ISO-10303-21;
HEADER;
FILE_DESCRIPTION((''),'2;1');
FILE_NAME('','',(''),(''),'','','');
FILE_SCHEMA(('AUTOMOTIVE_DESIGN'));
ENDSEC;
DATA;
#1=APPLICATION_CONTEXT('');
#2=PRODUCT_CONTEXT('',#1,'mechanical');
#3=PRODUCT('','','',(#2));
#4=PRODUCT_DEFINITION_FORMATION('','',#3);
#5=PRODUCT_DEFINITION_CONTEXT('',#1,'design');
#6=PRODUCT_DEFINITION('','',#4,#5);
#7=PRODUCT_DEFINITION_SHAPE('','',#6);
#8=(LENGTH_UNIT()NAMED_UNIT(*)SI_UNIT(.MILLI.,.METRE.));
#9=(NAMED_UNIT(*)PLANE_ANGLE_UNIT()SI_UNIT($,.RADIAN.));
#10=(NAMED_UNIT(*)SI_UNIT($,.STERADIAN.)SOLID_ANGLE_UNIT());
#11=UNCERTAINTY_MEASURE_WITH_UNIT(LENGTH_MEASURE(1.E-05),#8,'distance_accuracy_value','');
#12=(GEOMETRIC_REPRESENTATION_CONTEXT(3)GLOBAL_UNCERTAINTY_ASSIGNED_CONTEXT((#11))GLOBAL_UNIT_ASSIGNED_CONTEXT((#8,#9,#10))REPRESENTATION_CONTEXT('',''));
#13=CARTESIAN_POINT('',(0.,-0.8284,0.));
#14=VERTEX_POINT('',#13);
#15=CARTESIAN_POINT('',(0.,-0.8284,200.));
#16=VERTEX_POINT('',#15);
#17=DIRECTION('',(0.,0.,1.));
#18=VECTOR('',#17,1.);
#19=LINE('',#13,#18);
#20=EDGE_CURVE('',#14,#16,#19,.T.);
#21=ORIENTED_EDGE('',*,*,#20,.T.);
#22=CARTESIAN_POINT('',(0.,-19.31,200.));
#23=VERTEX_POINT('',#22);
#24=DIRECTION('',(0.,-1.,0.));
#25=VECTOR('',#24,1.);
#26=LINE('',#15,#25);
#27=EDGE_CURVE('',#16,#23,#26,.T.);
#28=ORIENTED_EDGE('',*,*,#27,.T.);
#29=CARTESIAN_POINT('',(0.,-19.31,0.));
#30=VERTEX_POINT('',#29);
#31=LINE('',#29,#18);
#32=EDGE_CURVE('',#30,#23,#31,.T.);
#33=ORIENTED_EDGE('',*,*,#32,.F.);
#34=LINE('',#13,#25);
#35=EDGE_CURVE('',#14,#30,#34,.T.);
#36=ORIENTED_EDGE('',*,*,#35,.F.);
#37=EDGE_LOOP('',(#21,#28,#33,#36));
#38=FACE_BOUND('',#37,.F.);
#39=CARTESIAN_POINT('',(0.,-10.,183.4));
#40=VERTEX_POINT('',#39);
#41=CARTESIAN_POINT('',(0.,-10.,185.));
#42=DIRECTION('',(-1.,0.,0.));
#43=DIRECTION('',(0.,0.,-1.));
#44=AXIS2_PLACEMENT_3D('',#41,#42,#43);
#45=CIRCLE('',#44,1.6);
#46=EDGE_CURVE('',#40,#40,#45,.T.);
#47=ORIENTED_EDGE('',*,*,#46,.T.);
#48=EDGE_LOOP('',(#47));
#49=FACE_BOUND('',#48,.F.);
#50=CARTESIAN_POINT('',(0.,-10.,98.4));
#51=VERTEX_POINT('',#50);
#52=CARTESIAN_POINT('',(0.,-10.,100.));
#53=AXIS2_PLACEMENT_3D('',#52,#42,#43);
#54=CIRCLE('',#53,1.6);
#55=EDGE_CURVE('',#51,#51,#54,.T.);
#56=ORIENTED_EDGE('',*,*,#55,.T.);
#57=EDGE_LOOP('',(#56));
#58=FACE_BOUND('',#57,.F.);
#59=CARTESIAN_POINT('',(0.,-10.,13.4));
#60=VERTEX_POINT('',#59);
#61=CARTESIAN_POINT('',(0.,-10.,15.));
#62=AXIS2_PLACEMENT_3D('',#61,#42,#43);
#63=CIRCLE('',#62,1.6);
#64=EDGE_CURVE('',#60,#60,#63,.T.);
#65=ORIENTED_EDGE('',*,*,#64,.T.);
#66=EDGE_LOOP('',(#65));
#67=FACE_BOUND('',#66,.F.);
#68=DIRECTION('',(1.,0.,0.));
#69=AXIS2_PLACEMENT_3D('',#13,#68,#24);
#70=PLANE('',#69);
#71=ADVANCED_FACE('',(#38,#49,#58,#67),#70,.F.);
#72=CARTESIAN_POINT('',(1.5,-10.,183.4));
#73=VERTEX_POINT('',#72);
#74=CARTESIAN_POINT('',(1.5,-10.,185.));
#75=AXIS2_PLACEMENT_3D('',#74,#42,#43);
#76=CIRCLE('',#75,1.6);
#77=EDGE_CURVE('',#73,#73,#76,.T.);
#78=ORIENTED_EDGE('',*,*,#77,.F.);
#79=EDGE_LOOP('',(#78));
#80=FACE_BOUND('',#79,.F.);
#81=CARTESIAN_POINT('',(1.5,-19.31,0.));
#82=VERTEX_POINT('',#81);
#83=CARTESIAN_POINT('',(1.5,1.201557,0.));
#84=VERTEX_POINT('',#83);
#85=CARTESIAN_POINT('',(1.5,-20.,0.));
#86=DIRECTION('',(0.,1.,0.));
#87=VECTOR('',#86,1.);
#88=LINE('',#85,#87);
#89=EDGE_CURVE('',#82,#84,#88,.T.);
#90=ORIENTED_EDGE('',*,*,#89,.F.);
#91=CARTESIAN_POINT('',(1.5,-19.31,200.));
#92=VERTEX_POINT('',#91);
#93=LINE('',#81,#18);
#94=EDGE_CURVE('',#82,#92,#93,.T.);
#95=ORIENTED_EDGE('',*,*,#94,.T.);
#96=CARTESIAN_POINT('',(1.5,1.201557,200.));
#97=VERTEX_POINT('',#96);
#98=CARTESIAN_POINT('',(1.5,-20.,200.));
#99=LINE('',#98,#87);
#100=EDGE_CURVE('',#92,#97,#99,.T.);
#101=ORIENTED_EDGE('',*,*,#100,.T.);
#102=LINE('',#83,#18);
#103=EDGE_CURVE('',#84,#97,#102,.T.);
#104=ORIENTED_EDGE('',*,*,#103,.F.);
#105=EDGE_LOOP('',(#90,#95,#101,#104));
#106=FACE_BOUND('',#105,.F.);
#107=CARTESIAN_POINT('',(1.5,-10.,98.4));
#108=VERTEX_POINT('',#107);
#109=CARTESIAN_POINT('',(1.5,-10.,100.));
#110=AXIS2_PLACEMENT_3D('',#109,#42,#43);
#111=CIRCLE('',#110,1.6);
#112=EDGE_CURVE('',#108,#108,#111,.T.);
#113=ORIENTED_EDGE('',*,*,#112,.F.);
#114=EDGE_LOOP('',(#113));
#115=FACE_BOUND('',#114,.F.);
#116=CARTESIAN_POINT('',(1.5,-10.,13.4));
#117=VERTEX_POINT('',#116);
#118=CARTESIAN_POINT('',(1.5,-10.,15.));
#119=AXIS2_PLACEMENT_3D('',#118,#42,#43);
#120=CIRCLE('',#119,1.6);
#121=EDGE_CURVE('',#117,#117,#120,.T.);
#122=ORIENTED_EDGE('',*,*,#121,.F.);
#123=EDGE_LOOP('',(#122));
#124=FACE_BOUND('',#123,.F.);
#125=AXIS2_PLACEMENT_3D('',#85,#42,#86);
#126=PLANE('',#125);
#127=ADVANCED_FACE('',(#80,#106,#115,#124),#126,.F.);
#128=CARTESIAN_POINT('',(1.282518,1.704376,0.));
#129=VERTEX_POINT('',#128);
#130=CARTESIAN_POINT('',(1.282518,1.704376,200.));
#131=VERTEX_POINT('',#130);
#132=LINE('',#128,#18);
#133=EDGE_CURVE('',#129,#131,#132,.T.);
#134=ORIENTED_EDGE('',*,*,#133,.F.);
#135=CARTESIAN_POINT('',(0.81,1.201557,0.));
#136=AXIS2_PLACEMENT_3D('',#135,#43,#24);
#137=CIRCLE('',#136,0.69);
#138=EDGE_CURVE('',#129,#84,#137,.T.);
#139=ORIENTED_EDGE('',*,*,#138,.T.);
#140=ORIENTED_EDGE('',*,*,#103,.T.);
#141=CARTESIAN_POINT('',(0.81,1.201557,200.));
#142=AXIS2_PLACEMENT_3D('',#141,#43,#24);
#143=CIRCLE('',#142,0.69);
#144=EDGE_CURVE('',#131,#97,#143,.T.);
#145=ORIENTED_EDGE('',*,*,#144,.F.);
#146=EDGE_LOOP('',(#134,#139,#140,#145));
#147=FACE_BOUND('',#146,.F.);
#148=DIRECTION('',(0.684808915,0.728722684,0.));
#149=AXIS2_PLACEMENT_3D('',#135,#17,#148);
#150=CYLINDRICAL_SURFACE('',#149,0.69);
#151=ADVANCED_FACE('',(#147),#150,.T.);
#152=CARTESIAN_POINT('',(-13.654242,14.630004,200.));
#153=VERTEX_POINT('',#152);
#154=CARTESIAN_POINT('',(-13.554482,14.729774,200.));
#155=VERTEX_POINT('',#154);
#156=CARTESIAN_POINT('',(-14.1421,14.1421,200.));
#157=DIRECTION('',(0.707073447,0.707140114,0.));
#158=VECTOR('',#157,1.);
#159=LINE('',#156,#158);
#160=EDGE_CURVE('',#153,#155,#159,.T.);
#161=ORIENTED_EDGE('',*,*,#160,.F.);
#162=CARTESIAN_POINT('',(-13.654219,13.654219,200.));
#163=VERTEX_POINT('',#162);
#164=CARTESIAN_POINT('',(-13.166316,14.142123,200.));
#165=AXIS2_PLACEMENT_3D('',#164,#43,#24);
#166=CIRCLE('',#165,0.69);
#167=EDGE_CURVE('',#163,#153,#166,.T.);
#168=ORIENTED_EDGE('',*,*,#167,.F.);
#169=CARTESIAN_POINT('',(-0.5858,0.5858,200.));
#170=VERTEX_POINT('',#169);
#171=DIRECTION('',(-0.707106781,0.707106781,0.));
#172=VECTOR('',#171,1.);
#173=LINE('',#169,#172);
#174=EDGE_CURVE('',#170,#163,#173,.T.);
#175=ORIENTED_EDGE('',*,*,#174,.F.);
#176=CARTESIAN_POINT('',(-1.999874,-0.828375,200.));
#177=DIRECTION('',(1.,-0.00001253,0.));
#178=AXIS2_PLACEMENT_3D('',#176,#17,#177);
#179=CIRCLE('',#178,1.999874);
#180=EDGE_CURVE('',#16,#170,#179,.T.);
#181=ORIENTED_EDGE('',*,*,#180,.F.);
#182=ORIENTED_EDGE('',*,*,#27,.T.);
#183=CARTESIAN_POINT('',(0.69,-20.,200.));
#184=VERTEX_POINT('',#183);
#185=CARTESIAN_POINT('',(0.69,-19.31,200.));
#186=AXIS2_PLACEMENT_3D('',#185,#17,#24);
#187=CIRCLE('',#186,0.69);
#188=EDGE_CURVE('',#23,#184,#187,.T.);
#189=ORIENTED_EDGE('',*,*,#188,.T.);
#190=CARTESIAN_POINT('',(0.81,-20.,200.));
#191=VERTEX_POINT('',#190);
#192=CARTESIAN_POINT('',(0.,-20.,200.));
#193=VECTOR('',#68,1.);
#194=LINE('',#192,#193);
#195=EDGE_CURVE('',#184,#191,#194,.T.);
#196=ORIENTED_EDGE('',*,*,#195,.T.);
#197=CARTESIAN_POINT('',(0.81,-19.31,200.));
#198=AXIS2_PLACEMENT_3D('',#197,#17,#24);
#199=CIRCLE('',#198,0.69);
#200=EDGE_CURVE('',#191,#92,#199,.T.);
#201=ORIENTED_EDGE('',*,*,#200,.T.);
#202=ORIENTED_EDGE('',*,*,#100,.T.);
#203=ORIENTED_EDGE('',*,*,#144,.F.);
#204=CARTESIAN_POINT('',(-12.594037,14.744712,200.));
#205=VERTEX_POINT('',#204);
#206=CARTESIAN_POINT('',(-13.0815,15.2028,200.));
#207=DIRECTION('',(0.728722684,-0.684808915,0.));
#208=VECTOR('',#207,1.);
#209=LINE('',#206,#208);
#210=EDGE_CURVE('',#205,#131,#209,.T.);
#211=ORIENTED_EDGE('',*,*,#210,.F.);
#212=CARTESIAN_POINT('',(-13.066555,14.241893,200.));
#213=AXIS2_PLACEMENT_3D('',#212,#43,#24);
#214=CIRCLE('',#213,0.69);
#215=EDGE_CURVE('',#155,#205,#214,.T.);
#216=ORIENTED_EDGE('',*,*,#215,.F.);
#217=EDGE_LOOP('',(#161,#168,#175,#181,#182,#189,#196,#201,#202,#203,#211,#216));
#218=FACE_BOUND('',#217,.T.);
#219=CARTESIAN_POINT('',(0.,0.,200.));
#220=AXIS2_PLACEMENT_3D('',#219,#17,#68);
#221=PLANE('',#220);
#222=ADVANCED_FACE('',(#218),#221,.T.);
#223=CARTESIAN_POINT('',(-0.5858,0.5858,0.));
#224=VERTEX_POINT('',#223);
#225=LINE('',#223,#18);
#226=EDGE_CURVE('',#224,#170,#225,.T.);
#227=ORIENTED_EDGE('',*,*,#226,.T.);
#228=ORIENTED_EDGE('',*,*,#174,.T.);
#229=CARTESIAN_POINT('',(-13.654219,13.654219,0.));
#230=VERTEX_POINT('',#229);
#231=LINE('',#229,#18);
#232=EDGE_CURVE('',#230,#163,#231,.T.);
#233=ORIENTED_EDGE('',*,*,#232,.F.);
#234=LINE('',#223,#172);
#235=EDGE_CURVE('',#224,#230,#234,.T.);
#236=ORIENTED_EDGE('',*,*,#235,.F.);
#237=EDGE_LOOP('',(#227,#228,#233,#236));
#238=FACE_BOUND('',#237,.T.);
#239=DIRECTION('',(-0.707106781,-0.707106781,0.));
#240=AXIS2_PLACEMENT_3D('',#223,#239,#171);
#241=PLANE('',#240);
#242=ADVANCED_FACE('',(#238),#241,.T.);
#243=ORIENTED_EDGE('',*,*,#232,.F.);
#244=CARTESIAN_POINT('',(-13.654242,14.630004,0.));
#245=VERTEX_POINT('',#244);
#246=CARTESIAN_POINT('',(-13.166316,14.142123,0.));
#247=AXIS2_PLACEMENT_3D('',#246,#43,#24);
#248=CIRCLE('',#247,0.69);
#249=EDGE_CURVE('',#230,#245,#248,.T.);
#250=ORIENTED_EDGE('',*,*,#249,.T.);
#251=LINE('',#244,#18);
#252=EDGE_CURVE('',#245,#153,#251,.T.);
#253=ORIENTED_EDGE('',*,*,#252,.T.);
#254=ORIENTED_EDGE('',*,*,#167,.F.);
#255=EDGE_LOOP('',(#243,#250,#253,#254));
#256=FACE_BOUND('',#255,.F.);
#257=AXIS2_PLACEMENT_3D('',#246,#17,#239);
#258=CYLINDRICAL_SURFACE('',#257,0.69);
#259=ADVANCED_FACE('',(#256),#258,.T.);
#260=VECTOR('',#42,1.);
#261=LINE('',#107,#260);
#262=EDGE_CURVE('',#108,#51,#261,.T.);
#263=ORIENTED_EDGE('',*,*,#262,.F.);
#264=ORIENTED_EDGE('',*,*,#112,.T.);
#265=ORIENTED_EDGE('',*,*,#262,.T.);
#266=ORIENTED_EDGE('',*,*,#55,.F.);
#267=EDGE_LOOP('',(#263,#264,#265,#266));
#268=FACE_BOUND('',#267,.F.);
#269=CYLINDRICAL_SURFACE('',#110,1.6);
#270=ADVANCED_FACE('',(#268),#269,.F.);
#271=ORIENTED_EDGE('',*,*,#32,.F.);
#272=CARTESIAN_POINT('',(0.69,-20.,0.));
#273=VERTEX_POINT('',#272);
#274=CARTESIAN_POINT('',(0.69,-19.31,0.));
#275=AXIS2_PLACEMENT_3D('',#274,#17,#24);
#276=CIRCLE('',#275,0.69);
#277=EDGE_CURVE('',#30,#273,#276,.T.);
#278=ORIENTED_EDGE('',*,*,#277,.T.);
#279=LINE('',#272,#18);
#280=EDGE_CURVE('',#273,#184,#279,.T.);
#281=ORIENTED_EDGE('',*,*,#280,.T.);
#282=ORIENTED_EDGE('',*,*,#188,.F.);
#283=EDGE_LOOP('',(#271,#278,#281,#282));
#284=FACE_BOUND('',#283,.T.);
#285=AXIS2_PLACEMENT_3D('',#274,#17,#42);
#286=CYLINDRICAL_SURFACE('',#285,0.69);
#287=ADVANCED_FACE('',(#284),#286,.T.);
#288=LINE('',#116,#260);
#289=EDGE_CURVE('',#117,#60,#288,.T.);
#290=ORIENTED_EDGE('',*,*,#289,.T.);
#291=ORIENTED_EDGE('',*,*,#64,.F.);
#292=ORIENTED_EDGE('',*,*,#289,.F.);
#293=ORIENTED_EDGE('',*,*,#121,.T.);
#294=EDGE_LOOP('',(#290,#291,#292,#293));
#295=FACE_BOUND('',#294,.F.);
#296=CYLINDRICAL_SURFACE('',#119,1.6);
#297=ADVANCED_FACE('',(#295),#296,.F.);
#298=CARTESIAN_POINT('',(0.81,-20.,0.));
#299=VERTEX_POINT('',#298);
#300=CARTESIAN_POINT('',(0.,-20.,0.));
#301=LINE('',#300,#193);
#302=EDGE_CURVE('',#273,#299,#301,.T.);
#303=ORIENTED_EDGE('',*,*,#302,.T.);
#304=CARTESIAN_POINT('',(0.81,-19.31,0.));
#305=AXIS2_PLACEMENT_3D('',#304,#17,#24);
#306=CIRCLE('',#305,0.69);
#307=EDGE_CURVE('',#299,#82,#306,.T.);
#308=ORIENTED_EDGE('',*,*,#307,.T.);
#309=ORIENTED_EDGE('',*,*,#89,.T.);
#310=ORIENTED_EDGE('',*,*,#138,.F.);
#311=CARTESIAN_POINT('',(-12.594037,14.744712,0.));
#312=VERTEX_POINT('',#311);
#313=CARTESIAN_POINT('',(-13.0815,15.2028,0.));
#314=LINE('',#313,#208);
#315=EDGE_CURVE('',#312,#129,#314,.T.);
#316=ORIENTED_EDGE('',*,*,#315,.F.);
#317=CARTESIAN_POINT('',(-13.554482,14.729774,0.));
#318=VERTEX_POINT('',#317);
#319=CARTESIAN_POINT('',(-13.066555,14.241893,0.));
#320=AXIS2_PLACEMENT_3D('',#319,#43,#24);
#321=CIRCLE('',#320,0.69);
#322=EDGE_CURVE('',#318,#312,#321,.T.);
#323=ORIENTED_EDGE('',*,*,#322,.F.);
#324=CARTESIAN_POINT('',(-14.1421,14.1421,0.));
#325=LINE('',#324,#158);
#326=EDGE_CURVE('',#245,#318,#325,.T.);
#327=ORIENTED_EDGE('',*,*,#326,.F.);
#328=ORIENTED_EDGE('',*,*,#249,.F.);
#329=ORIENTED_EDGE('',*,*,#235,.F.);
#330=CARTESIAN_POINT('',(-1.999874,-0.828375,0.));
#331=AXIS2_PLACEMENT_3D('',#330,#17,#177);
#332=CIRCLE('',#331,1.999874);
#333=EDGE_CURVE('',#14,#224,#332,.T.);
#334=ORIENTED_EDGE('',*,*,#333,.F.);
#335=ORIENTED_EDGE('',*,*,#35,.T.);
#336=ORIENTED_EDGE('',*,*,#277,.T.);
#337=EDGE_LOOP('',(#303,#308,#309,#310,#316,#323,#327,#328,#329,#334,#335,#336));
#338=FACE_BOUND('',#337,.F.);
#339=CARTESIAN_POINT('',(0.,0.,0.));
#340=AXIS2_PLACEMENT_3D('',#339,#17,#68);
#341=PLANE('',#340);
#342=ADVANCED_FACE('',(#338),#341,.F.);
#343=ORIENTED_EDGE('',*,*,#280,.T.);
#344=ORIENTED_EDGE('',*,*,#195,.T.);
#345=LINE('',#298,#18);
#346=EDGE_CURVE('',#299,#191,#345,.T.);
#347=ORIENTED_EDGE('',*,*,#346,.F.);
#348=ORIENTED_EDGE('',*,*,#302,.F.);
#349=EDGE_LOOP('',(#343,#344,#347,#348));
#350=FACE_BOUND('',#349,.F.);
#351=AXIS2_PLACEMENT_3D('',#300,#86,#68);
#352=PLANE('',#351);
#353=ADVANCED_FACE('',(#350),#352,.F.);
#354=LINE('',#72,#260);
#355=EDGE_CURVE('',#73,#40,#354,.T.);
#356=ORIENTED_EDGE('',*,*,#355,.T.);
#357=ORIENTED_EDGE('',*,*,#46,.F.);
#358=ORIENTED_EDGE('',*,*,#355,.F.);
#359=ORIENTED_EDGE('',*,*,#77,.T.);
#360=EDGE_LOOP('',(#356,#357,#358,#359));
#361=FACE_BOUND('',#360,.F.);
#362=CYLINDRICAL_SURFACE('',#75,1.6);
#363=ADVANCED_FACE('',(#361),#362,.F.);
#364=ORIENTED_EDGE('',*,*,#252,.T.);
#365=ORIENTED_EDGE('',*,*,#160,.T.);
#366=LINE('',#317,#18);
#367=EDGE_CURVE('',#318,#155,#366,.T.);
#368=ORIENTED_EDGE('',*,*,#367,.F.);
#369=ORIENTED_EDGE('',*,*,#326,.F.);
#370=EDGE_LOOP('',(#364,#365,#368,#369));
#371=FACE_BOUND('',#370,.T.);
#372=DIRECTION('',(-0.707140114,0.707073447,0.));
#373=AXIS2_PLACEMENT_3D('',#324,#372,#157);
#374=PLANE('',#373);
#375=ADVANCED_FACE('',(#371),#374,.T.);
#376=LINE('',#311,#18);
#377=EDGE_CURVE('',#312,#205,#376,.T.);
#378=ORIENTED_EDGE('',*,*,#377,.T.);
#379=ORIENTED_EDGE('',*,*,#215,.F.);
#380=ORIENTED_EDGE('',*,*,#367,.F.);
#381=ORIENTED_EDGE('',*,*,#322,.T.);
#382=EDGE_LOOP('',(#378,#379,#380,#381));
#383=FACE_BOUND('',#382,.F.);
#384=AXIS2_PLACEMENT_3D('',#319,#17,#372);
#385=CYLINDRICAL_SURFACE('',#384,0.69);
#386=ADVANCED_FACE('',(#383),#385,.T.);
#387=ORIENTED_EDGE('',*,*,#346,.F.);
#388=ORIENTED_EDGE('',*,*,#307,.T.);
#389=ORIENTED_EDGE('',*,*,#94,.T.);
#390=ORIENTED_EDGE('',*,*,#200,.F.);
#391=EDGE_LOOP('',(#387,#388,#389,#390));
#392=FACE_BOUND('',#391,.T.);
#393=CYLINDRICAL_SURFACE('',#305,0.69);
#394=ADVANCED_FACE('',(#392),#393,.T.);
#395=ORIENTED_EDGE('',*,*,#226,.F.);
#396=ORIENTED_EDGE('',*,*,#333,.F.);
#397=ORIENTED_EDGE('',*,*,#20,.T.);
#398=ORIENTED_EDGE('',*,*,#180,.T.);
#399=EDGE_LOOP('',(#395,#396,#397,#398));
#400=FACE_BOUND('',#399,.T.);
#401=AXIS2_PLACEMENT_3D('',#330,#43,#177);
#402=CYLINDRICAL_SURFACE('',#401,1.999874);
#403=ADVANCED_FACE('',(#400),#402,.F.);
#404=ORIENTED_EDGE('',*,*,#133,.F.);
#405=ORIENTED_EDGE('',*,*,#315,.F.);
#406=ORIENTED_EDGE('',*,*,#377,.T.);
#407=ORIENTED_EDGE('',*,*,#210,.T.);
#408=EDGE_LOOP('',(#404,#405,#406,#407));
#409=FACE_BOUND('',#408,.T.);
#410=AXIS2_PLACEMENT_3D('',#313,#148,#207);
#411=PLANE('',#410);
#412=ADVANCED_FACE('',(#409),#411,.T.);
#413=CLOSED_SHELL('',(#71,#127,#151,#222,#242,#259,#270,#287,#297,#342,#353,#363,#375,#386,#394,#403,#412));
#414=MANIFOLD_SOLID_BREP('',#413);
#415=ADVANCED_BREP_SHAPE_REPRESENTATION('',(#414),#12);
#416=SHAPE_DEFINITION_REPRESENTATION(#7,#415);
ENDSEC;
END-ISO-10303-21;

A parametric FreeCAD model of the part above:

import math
import FreeCAD as App
import Part
import Sketcher
Q = App.Units.Quantity


def edges_at(feature, points):
    """Names of the edges that pass closest to the given points."""
    edges = feature.Shape.Edges
    near = lambda p: min(range(len(edges)), key=lambda i: edges[i].distToShape(Part.Vertex(*p))[0])
    return sorted({f"Edge{near(p) + 1}" for p in points})

doc = App.newDocument("Part")
body = doc.addObject("PartDesign::Body", "Body")

sketch1 = body.newObject("Sketcher::SketchObject", "Sketch")
sketch1.AttachmentSupport = (doc.getObject("XY_Plane"), [""])
sketch1.MapMode = "FlatFace"
sketch1.addGeometry([
    Part.ArcOfCircle(Part.Circle(App.Vector(-2, -0.8, 0), App.Vector(0, 0, 1), 2), math.radians(0), math.radians(45)),
    Part.LineSegment(App.Vector(0, -0.8, 0), App.Vector(0, -20, 0)),
    Part.LineSegment(App.Vector(0, -20, 0), App.Vector(1.5, -20, 0)),
    Part.LineSegment(App.Vector(1.5, -20, 0), App.Vector(1.5, 1.5, 0)),
    Part.LineSegment(App.Vector(1.5, 1.5, 0), App.Vector(-13.1, 15.2, 0)),
    Part.LineSegment(App.Vector(-13.1, 15.2, 0), App.Vector(-14.1, 14.1, 0)),
    Part.LineSegment(App.Vector(-14.1, 14.1, 0), App.Vector(-0.6, 0.6, 0)),
], False)
sketch1.addConstraint([
    Sketcher.Constraint("Tangent", 0, 1, 1, 1),
    Sketcher.Constraint("Coincident", 1, 2, 2, 1),
    Sketcher.Constraint("Coincident", 2, 2, 3, 1),
    Sketcher.Constraint("Coincident", 3, 2, 4, 1),
    Sketcher.Constraint("Coincident", 4, 2, 5, 1),
    Sketcher.Constraint("Coincident", 5, 2, 6, 1),
    Sketcher.Constraint("Tangent", 6, 2, 0, 2),
    Sketcher.Constraint("Vertical", 1),
    Sketcher.Constraint("Horizontal", 2),
    Sketcher.Constraint("Vertical", 3),
    Sketcher.Constraint("PointOnObject", 0, 1, -2),
    Sketcher.Constraint("Perpendicular", 5, 6),
    Sketcher.Constraint("Radius", 0, Q("2 mm")),
    Sketcher.Constraint("DistanceX", 2, 1, 2, 2, Q("1.5 mm")),
    Sketcher.Constraint("DistanceY", 3, 1, 3, 2, Q("21.5 mm")),
    Sketcher.Constraint("DistanceY", 1, 2, -1, 1, Q("20 mm")),
    Sketcher.Constraint("Distance", 5, Q("1.5 mm")),
    Sketcher.Constraint("Angle", 6, Q("-45 deg")),
    Sketcher.Constraint("Angle", 4, Q("136.7794 deg")),
    Sketcher.Constraint("DistanceY", 1, 2, 1, 1, Q("19.1716 mm")),
])
pad1 = body.newObject("PartDesign::Pad", "Pad")
pad1.Profile = sketch1
pad1.Length = 200

sketch2 = body.newObject("Sketcher::SketchObject", "Sketch001")
sketch2.AttachmentSupport = (doc.getObject("YZ_Plane"), [""])
sketch2.MapMode = "FlatFace"
sketch2.AttachmentOffset = App.Placement(App.Vector(0, 0, 1.5), App.Rotation())
sketch2.addGeometry(Part.Circle(App.Vector(-10, 185, 0), App.Vector(0, 0, 1), 1.6), False)
sketch2.addConstraint([
    Sketcher.Constraint("Diameter", 0, Q("3.2 mm")),
    Sketcher.Constraint("DistanceX", 0, 3, -1, 1, Q("10 mm")),
    Sketcher.Constraint("DistanceY", -1, 1, 0, 3, Q("185 mm")),
])
doc.recompute()
hole = body.newObject("PartDesign::Hole", "Hole")
hole.Profile = sketch2
hole.ThreadType = "None"
hole.Diameter = 3.2
hole.DepthType = "ThroughAll"
doc.recompute()

linearpattern = body.newObject("PartDesign::LinearPattern", "LinearPattern")
linearpattern.Originals = [hole]
linearpattern.Direction = (doc.getObject("Z_Axis"), [""])
linearpattern.Mode = "offset"
linearpattern.Offset = 85
linearpattern.Occurrences = 3
linearpattern.Reversed = True
body.Tip = linearpattern
doc.recompute()

fillet = body.newObject("PartDesign::Fillet", "Fillet")
fillet.Base = (linearpattern, edges_at(linearpattern, [
    (1.5, -20, 100),
    (0, -20, 100),
    (-14.142, 14.142, 100),
    (1.5, 1.5, 100),
    (-13.082, 15.203, 100),
]))
fillet.Radius = 0.69

doc.recompute()
